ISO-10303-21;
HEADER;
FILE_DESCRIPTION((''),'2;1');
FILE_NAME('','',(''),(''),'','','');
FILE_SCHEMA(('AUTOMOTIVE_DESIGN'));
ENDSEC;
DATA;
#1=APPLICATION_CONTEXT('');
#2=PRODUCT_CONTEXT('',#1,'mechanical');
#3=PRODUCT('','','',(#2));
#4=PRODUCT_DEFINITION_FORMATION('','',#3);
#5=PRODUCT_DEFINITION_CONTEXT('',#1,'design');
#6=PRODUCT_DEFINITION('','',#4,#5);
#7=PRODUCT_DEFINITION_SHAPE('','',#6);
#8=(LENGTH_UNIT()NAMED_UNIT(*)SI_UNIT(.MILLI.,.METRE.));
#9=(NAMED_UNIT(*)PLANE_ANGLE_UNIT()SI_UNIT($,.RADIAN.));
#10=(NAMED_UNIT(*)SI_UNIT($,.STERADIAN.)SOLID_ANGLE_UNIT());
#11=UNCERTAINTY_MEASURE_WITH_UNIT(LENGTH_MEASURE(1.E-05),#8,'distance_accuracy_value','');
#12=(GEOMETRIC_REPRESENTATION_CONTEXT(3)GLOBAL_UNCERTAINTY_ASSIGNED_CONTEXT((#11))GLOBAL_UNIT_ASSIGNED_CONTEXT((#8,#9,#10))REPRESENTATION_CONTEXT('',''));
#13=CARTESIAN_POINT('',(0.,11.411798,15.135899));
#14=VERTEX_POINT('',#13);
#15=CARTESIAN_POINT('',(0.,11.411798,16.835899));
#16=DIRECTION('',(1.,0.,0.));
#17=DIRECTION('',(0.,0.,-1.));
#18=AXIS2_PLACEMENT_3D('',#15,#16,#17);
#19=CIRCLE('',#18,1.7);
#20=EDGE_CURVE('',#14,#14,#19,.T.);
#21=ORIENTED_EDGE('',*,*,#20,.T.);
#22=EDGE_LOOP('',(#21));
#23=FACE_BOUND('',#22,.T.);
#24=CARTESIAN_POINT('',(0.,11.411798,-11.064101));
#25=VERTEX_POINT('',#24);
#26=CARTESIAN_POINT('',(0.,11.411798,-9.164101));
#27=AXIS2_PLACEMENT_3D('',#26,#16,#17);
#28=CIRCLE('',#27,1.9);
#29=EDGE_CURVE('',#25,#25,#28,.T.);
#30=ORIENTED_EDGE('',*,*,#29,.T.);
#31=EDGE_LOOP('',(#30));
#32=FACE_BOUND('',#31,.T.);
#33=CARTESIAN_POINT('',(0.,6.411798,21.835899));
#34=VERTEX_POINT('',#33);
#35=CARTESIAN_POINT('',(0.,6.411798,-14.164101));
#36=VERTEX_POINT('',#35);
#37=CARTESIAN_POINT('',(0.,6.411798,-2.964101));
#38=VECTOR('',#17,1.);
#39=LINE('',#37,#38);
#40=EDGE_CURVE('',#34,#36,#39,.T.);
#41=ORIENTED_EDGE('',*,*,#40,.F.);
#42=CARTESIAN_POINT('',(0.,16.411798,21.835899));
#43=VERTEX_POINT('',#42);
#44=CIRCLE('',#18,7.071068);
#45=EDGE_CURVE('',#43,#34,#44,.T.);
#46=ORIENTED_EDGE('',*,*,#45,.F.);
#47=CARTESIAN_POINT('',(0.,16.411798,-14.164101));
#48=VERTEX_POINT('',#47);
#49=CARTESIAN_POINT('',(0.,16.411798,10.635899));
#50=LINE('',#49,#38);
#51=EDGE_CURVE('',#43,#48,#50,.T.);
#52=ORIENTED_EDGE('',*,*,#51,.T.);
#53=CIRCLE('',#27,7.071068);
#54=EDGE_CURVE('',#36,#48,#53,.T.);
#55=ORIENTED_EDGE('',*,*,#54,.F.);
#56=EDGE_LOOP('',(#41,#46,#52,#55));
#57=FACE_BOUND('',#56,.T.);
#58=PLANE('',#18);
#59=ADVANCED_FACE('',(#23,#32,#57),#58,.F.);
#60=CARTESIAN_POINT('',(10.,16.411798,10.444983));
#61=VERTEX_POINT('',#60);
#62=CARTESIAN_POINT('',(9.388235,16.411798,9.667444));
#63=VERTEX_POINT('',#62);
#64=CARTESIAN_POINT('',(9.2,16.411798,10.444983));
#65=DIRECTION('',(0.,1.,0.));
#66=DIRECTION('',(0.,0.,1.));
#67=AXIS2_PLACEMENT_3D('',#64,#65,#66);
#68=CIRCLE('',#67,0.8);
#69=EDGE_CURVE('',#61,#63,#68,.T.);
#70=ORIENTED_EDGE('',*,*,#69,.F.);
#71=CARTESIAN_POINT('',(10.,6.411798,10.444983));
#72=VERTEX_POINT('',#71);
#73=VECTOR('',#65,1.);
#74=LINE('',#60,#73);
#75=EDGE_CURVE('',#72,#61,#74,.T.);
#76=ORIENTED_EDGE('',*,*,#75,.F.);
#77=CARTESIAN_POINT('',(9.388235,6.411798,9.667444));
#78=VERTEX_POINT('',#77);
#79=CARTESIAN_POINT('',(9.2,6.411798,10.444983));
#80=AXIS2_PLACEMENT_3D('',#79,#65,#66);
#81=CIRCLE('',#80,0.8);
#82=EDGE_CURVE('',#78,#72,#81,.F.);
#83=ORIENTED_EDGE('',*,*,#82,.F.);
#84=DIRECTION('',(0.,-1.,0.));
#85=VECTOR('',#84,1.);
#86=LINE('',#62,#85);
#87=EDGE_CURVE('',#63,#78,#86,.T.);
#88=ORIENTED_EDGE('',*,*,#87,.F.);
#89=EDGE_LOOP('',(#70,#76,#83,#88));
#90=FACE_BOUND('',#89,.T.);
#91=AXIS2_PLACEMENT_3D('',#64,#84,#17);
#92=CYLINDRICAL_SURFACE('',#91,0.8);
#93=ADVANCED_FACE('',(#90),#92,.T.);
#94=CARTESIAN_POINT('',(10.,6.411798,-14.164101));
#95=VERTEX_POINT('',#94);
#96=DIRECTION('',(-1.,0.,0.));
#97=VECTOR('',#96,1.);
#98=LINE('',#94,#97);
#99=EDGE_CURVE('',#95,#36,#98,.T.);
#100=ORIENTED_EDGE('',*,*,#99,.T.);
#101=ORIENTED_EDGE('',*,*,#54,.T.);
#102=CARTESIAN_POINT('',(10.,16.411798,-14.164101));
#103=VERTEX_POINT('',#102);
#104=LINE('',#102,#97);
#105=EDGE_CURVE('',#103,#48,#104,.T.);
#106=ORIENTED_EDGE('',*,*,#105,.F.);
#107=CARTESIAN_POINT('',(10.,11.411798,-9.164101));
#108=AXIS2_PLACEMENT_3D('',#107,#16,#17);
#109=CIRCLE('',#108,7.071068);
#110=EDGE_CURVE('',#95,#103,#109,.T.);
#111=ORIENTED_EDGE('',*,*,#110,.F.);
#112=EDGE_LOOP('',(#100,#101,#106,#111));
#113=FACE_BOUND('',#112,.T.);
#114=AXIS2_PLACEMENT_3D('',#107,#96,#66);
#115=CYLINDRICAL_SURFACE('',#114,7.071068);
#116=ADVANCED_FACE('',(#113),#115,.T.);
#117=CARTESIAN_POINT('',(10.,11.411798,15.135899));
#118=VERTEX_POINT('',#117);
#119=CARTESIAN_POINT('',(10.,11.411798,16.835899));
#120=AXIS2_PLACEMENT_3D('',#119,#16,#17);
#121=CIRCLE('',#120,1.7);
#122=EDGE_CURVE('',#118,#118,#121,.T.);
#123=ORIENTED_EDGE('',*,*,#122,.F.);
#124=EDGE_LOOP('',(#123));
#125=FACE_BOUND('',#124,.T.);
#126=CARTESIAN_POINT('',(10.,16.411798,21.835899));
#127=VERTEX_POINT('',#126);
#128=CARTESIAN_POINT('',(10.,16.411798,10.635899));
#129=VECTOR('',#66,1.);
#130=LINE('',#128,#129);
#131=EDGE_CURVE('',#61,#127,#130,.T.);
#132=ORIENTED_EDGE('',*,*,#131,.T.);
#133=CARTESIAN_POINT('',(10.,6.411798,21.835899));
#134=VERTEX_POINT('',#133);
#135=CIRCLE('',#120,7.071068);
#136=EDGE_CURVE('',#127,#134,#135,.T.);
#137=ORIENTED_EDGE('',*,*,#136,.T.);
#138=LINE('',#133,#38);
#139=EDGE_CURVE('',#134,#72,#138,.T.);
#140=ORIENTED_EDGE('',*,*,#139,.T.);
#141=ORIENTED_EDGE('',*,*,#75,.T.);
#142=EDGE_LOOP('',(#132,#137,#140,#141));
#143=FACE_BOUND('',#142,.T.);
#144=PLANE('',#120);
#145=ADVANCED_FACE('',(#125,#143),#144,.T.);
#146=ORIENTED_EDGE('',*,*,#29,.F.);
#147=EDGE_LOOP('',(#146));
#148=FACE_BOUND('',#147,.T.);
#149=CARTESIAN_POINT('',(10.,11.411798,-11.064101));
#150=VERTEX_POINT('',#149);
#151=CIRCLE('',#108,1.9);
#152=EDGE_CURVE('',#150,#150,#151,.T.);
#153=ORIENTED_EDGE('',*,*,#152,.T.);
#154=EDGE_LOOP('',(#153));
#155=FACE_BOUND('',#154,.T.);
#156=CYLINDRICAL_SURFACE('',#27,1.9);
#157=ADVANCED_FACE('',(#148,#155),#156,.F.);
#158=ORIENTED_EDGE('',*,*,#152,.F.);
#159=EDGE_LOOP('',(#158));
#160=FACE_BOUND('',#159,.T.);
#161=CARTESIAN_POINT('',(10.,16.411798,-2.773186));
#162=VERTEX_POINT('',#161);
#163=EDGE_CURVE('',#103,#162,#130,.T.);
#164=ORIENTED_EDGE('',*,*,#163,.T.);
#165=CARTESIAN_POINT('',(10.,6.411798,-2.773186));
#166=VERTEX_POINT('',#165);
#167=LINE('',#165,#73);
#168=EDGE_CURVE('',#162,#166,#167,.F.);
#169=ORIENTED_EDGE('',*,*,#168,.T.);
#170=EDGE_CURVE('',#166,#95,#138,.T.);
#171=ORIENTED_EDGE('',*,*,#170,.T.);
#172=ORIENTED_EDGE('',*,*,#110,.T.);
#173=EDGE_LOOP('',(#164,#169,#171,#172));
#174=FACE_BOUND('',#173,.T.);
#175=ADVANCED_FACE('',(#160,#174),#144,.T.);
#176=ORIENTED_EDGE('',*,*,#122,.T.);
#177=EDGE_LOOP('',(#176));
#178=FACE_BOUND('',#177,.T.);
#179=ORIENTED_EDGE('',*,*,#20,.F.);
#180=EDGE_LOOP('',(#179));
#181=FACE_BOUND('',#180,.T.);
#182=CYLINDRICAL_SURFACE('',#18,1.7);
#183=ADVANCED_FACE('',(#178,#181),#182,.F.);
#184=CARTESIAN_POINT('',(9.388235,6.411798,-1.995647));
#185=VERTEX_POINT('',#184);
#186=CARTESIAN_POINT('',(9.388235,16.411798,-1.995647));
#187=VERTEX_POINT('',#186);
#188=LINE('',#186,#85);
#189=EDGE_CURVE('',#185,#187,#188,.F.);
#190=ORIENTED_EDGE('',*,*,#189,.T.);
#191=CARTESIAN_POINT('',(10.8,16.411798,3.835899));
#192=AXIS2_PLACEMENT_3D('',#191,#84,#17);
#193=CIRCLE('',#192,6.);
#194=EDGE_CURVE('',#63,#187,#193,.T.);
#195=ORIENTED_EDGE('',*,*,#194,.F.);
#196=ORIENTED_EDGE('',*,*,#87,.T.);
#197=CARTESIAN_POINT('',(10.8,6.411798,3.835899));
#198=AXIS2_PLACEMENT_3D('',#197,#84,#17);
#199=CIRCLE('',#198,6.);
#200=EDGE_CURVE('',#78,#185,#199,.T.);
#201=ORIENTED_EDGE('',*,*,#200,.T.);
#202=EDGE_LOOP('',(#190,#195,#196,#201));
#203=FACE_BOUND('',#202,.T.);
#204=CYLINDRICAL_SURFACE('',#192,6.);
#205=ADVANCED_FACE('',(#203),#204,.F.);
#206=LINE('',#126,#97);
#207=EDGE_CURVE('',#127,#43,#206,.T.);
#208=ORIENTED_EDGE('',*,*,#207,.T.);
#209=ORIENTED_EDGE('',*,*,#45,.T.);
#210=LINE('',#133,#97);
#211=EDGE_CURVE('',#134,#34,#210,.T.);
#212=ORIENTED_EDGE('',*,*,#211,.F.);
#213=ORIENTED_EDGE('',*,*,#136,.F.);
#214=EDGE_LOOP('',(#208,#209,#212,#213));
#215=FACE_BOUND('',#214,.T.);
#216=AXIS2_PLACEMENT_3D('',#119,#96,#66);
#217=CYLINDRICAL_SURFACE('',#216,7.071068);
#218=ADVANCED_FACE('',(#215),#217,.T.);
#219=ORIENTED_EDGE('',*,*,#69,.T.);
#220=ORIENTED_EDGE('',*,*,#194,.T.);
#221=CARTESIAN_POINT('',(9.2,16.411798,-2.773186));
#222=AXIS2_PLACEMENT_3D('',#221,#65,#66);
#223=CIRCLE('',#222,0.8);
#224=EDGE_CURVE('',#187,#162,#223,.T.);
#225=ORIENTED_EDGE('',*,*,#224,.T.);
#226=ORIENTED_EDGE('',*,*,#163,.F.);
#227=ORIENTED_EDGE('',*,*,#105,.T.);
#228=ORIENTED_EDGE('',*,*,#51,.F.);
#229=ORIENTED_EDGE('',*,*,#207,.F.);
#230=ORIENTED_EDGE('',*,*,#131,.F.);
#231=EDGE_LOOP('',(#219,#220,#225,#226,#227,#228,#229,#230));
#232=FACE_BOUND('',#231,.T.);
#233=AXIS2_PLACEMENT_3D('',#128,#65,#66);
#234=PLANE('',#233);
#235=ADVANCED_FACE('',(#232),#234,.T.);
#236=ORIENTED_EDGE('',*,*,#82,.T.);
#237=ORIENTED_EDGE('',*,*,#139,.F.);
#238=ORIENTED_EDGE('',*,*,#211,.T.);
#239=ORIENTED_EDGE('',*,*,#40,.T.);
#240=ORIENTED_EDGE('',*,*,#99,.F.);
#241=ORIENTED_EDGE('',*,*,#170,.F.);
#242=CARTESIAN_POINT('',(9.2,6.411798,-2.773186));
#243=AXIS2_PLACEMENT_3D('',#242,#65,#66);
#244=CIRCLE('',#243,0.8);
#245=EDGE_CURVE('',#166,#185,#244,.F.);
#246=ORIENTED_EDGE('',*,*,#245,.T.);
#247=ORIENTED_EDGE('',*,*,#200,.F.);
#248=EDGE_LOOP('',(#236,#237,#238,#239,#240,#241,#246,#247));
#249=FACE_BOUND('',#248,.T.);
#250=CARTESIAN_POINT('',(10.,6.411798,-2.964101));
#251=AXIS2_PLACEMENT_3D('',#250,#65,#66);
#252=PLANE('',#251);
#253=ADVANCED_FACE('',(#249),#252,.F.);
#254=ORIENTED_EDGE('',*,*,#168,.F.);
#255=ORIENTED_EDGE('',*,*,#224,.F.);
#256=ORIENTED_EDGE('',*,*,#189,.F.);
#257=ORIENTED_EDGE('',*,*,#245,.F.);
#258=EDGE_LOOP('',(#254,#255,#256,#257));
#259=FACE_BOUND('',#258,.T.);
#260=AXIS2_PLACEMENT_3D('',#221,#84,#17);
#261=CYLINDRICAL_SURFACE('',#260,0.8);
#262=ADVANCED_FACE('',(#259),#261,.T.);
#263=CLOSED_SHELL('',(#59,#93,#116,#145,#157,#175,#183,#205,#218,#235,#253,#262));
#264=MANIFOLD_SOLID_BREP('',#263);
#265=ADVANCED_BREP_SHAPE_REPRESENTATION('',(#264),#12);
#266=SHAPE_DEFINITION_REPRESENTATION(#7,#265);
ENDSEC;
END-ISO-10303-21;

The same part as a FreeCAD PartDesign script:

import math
import FreeCAD as App
import Part
import Sketcher
Q = App.Units.Quantity


def edges_at(feature, points):
    """Names of the edges that pass closest to the given points."""
    edges = feature.Shape.Edges
    near = lambda p: min(range(len(edges)), key=lambda i: edges[i].distToShape(Part.Vertex(*p))[0])
    return sorted({f"Edge{near(p) + 1}" for p in points})

doc = App.newDocument("Part")
body = doc.addObject("PartDesign::Body", "Body")

# Sketch on YZ plane
sketch1 = doc.addObject("Sketcher::SketchObject", "Sketch")
body.addObject(sketch1)
sketch1.AttachmentSupport = (doc.YZ_Plane, [""])
sketch1.MapMode = "FlatFace"
sketch1.addGeometry([
    Part.ArcOfCircle(Part.Circle(App.Vector(11, -9, 0), App.Vector(0, 0, 1), 7), math.radians(-135), math.radians(-45)),
    Part.LineSegment(App.Vector(16, -14, 0), App.Vector(16, 22, 0)),
    Part.ArcOfCircle(Part.Circle(App.Vector(11, 17, 0), App.Vector(0, 0, 1), 7), math.radians(45), math.radians(135)),
    Part.LineSegment(App.Vector(6, 22, 0), App.Vector(6, -14, 0)),
], False)
sketch1.addConstraint([
    Sketcher.Constraint("Coincident", 0, 2, 1, 1),
    Sketcher.Constraint("Coincident", 1, 2, 2, 1),
    Sketcher.Constraint("Coincident", 2, 2, 3, 1),
    Sketcher.Constraint("Coincident", 3, 2, 0, 1),
    Sketcher.Constraint("Vertical", 1),
    Sketcher.Constraint("Vertical", 3),
    Sketcher.Constraint("Equal", 0, 2),
    Sketcher.Constraint("Horizontal", 1, 2, 2, 2),
    Sketcher.Constraint("Horizontal", 0, 2, 3, 2),
    Sketcher.Constraint("DistanceY", 1, 1, 1, 2, Q("36 mm")),
    Sketcher.Constraint("DistanceY", 0, 3, 2, 3, Q("26 mm")),
    Sketcher.Constraint("DistanceX", 0, 3, 0, 2, Q("5 mm")),
    Sketcher.Constraint("DistanceX", -1, 1, 0, 3, Q("11.411798 mm")),
    Sketcher.Constraint("DistanceY", 0, 3, -1, 1, Q("9.164101 mm")),
])
pad1 = doc.addObject("PartDesign::Pad", "Pad")
body.addObject(pad1)
pad1.Profile = sketch1
pad1.Length = 10

# Sketch on XZ plane
sketch2 = doc.addObject("Sketcher::SketchObject", "Sketch001")
body.addObject(sketch2)
sketch2.AttachmentSupport = (doc.XZ_Plane, [""])
sketch2.MapMode = "FlatFace"
sketch2.AttachmentOffset = App.Placement(App.Vector(0, 0, -6.411798), App.Rotation())
sketch2.addGeometry([
    Part.LineSegment(App.Vector(10, -2, 0), App.Vector(10, 10, 0)),
    Part.ArcOfCircle(Part.Circle(App.Vector(11, 4, 0), App.Vector(0, 0, 1), 6), math.radians(98), math.radians(262)),
], False)
sketch2.addConstraint([
    Sketcher.Constraint("Coincident", 0, 1, 1, 2),
    Sketcher.Constraint("Coincident", 1, 1, 0, 2),
    Sketcher.Constraint("Vertical", 0),
    Sketcher.Constraint("Radius", 1, Q("6 mm")),
    Sketcher.Constraint("DistanceX", -1, 1, 0, 1, Q("10 mm")),
    Sketcher.Constraint("DistanceX", -1, 1, 1, 3, Q("10.8 mm")),
    Sketcher.Constraint("DistanceY", -1, 1, 1, 3, Q("3.835899 mm")),
])
pocket1 = doc.addObject("PartDesign::Pocket", "Pocket")
body.addObject(pocket1)
pocket1.Profile = sketch2
pocket1.Type = "ThroughAll"
doc.recompute()

fillet = doc.addObject("PartDesign::Fillet", "Fillet")
body.addObject(fillet)
fillet.Base = (pocket1, edges_at(pocket1, [(10, 11.412, -2.111), (10, 11.412, 9.782)]))
fillet.Radius = 0.8

# Sketch on YZ plane
sketch3 = doc.addObject("Sketcher::SketchObject", "Sketch002")
body.addObject(sketch3)
sketch3.AttachmentSupport = (doc.YZ_Plane, [""])
sketch3.MapMode = "FlatFace"
sketch3.AttachmentOffset = App.Placement(App.Vector(0, 0, 10), App.Rotation())
sketch3.addGeometry([
    Part.Circle(App.Vector(11.4, 16.8, 0), App.Vector(0, 0, 1), 1.7),
    Part.Circle(App.Vector(11.4, -9.2, 0), App.Vector(0, 0, 1), 1.9),
], False)
sketch3.addConstraint([
    Sketcher.Constraint("Vertical", 0, 3, 1, 3),
    Sketcher.Constraint("Diameter", 0, Q("3.4 mm")),
    Sketcher.Constraint("Diameter", 1, Q("3.8 mm")),
    Sketcher.Constraint("DistanceY", 1, 3, 0, 3, Q("26 mm")),
    Sketcher.Constraint("DistanceX", -1, 1, 0, 3, Q("11.411798 mm")),
    Sketcher.Constraint("DistanceY", -1, 1, 0, 3, Q("16.835899 mm")),
])
pocket2 = doc.addObject("PartDesign::Pocket", "Pocket001")
body.addObject(pocket2)
pocket2.Profile = sketch3
pocket2.Length = 10

doc.recompute()
